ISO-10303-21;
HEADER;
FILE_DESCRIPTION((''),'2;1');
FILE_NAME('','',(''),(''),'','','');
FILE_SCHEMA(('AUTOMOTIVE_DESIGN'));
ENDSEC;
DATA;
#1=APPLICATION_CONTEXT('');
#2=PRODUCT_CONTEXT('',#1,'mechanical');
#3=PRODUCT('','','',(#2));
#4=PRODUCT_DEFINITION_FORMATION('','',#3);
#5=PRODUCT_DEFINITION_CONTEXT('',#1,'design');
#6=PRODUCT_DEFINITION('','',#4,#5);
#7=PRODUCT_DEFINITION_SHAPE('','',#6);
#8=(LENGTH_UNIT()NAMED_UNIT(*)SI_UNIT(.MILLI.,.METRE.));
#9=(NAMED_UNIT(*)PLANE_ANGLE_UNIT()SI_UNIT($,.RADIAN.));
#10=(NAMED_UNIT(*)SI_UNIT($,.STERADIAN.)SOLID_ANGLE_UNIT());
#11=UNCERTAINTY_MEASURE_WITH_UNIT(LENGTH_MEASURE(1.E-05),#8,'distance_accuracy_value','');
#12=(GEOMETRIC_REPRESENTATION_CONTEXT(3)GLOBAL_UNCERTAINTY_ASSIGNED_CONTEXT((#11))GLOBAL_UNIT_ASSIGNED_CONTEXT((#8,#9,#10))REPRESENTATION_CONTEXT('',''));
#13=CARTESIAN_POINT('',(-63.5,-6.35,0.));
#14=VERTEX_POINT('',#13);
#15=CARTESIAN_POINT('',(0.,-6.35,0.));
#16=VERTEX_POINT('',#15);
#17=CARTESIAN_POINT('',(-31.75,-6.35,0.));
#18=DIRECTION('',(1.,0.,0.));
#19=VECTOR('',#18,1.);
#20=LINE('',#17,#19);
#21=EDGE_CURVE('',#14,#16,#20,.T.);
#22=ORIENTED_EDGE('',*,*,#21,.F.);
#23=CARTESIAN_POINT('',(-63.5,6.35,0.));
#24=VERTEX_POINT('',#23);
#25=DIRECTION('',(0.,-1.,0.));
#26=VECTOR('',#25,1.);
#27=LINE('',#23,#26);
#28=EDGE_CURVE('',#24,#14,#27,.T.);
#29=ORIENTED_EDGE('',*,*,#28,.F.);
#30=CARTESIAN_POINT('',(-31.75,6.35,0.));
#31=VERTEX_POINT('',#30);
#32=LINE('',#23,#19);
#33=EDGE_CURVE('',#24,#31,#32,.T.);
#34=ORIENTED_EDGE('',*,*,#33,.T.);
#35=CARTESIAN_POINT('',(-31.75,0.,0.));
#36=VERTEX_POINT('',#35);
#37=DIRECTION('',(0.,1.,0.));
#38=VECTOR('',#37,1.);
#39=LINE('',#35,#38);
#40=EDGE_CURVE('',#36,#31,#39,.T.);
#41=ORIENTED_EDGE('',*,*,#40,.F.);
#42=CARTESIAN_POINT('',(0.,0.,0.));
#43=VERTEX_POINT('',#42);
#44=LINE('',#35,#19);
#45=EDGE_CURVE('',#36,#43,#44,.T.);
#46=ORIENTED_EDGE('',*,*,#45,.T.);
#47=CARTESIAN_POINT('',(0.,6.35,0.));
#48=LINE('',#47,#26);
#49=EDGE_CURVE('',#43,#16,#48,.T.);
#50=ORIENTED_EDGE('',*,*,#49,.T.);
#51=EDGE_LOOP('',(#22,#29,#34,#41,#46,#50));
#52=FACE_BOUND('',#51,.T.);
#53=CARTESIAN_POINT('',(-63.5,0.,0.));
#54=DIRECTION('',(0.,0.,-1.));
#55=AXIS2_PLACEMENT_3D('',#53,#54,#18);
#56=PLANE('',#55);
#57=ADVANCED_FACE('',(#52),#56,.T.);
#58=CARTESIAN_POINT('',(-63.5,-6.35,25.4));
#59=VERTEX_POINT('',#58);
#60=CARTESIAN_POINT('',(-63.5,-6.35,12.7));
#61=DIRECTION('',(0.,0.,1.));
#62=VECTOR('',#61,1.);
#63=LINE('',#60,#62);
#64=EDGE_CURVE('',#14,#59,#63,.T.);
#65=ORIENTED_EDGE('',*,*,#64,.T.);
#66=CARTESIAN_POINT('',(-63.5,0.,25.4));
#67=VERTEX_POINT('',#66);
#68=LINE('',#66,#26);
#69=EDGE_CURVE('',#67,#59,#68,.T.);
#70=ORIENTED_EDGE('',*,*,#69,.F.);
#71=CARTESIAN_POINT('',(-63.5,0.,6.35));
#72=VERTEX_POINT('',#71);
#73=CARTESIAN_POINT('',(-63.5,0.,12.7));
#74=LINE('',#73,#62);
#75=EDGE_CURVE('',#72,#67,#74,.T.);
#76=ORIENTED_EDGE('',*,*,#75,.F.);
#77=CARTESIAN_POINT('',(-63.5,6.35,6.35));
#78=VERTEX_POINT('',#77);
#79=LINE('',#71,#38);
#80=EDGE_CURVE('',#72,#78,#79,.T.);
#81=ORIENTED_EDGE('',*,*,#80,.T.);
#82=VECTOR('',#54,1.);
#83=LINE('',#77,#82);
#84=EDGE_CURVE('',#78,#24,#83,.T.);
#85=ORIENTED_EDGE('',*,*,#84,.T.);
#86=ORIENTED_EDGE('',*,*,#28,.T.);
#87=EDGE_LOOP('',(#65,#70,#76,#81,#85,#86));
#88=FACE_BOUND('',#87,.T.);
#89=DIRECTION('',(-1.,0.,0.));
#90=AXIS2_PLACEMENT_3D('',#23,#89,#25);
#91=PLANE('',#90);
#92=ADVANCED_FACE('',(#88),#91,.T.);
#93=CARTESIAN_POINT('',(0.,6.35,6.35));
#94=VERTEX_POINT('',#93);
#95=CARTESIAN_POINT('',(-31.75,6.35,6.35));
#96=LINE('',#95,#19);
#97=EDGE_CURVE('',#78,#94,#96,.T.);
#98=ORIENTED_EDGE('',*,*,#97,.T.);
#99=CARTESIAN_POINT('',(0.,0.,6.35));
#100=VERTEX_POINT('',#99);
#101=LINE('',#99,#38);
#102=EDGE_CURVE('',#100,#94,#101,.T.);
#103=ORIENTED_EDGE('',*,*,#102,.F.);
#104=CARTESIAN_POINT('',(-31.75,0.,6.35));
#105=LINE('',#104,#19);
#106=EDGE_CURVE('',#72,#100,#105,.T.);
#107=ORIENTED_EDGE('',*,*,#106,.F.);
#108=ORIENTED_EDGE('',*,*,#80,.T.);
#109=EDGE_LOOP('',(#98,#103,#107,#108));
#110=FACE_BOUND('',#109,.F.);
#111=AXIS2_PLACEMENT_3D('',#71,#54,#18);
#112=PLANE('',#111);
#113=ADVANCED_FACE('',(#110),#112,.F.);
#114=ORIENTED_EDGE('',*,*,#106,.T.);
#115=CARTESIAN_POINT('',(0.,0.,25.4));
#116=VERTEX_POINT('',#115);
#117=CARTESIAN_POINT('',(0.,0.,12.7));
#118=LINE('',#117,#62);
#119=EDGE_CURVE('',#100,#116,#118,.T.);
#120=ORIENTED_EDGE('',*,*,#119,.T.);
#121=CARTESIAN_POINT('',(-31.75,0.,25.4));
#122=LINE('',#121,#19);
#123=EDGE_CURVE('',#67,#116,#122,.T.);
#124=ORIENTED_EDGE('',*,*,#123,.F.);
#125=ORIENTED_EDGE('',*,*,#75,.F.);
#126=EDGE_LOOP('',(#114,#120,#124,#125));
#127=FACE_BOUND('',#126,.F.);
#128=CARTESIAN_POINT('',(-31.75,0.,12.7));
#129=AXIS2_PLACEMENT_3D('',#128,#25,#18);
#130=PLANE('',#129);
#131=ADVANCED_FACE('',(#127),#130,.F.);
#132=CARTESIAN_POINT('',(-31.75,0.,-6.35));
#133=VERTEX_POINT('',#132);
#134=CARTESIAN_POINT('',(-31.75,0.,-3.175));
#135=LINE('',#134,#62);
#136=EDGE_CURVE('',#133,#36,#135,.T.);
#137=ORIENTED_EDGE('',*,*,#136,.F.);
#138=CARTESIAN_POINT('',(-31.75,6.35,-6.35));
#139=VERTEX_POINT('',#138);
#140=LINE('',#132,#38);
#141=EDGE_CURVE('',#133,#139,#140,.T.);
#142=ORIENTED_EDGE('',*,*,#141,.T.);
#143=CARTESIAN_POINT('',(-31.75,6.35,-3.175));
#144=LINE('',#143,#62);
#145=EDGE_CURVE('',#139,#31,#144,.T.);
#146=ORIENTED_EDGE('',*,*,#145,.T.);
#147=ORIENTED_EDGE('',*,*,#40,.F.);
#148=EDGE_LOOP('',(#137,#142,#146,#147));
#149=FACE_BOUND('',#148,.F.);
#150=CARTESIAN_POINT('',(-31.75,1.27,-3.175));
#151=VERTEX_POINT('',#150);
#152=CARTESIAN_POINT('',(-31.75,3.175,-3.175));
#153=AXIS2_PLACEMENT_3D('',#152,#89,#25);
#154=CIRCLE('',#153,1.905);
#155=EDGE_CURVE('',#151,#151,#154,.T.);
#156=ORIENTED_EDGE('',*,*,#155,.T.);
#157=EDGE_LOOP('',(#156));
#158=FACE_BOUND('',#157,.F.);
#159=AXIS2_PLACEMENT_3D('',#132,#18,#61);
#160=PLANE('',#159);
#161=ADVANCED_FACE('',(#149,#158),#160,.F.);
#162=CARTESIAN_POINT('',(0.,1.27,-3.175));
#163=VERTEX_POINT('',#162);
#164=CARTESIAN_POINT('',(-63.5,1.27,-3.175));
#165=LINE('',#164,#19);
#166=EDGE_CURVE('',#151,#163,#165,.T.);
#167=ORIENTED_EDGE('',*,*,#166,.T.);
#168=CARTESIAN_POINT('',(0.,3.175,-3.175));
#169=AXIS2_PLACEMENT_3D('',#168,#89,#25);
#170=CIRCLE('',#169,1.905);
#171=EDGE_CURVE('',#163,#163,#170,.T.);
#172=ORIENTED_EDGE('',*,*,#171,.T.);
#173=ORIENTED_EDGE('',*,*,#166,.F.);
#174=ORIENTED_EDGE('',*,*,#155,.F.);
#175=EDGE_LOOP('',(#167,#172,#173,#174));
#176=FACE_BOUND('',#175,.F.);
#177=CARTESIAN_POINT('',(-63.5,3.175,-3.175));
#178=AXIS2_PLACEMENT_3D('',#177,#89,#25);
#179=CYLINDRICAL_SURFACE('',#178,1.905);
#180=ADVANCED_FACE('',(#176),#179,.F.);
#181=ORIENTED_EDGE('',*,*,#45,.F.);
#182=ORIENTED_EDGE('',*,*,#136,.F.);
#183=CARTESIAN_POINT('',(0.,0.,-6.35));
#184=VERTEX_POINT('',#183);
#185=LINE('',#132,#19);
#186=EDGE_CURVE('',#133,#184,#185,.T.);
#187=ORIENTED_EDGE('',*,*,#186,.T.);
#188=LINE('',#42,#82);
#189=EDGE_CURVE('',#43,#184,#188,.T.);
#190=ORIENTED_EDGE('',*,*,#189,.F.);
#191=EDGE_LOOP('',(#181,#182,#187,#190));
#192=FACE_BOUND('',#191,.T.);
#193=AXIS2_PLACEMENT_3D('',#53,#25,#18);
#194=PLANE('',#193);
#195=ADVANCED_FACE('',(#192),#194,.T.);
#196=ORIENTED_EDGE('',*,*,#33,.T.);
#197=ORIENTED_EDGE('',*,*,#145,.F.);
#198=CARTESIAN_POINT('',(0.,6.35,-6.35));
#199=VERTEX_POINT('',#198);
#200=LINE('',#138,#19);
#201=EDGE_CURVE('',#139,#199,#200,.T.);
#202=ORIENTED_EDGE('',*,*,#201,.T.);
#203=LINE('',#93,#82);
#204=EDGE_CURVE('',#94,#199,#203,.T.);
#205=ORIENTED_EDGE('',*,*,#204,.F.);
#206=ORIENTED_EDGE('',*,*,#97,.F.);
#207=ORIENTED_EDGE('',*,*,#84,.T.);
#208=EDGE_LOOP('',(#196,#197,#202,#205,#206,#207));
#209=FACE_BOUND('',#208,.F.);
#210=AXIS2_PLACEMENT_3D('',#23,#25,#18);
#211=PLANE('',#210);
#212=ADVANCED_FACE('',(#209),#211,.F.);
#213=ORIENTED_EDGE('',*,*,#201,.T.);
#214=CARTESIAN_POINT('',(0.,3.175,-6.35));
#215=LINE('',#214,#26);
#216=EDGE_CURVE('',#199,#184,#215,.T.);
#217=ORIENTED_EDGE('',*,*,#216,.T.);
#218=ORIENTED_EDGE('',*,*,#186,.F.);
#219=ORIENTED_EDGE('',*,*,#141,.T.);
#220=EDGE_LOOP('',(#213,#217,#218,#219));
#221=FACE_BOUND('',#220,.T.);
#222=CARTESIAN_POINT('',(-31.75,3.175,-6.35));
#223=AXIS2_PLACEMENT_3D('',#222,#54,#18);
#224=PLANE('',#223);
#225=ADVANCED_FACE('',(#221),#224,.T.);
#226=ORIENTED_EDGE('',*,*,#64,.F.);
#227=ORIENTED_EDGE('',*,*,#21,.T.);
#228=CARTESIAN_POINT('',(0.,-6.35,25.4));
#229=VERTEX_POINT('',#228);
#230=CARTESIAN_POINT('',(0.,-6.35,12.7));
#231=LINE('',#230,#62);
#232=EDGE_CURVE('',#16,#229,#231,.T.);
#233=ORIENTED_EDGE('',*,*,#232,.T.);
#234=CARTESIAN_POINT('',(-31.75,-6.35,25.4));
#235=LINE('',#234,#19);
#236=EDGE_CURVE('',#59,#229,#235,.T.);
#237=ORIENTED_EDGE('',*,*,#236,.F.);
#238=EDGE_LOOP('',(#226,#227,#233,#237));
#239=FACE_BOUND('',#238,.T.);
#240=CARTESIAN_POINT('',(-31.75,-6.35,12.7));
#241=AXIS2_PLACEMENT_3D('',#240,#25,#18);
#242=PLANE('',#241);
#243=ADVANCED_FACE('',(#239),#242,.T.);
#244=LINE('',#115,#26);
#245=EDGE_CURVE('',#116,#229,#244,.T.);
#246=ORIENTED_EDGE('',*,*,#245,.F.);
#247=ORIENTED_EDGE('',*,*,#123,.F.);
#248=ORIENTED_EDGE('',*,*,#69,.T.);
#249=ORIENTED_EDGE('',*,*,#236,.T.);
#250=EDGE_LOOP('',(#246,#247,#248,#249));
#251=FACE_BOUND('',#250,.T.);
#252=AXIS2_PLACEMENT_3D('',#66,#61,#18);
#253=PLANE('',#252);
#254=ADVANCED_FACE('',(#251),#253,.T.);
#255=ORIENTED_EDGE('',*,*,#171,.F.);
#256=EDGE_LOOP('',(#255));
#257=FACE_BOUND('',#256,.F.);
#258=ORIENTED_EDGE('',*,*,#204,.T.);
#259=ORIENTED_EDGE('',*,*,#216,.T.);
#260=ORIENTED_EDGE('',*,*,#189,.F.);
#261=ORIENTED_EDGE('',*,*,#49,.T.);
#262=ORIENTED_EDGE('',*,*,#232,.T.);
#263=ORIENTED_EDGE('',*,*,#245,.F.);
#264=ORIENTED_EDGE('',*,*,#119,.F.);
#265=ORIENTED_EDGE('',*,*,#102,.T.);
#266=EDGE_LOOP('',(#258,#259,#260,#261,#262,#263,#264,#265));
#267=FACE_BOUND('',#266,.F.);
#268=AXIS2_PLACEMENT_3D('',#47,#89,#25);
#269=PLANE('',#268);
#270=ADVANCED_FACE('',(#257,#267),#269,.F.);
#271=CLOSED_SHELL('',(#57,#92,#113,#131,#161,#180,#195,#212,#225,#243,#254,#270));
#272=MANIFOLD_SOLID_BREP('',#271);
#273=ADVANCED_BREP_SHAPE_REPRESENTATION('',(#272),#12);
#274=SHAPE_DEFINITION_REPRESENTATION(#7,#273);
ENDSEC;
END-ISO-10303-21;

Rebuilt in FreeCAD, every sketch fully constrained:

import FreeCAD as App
import Part
import Sketcher

V = App.Vector
Q = App.Units.Quantity

doc = App.newDocument("Part")
body = doc.addObject("PartDesign::Body", "Body")

# Sketch on XZ plane
sketch1 = body.newObject("Sketcher::SketchObject", "Sketch")
sketch1.AttachmentSupport = (doc.getObject("XZ_Plane"), [""])
sketch1.MapMode = "FlatFace"
sketch1.addGeometry(Part.LineSegment(V(-64, 25, 0), V(-64, 0, 0)), False)
sketch1.addGeometry(Part.LineSegment(V(-64, 0, 0), V(0, 0, 0)), False)
sketch1.addGeometry(Part.LineSegment(V(0, 0, 0), V(0, 25, 0)), False)
sketch1.addGeometry(Part.LineSegment(V(0, 25, 0), V(-64, 25, 0)), False)
sketch1.addConstraint(Sketcher.Constraint("Coincident", 0, 2, 1, 1))
sketch1.addConstraint(Sketcher.Constraint("Coincident", 1, 2, 2, 1))
sketch1.addConstraint(Sketcher.Constraint("Coincident", 2, 2, 3, 1))
sketch1.addConstraint(Sketcher.Constraint("Coincident", 3, 2, 0, 1))
sketch1.addConstraint(Sketcher.Constraint("Vertical", 0))
sketch1.addConstraint(Sketcher.Constraint("Horizontal", 1))
sketch1.addConstraint(Sketcher.Constraint("Vertical", 2))
sketch1.addConstraint(Sketcher.Constraint("Horizontal", 3))
sketch1.addConstraint(Sketcher.Constraint("Coincident", 1, 2, -1, 1))
sketch1.addConstraint(Sketcher.Constraint("DistanceY", 0, 2, 0, 1, Q("1 in")))
sketch1.addConstraint(Sketcher.Constraint("DistanceX", 1, 1, 1, 2, Q("2.5 in")))
pad1 = body.newObject("PartDesign::Pad", "Pad")
pad1.Profile = sketch1
pad1.Length = Q("0.25 in")

# Sketch on XZ plane
sketch2 = body.newObject("Sketcher::SketchObject", "Sketch001")
sketch2.AttachmentSupport = (doc.getObject("XZ_Plane"), [""])
sketch2.MapMode = "FlatFace"
sketch2.addGeometry(Part.LineSegment(V(-64, 6, 0), V(-64, 0, 0)), False)
sketch2.addGeometry(Part.LineSegment(V(-64, 0, 0), V(0, 0, 0)), False)
sketch2.addGeometry(Part.LineSegment(V(0, 0, 0), V(0, 6, 0)), False)
sketch2.addGeometry(Part.LineSegment(V(0, 6, 0), V(-64, 6, 0)), False)
sketch2.addConstraint(Sketcher.Constraint("Coincident", 0, 2, 1, 1))
sketch2.addConstraint(Sketcher.Constraint("Coincident", 1, 2, 2, 1))
sketch2.addConstraint(Sketcher.Constraint("Coincident", 2, 2, 3, 1))
sketch2.addConstraint(Sketcher.Constraint("Coincident", 3, 2, 0, 1))
sketch2.addConstraint(Sketcher.Constraint("Vertical", 0))
sketch2.addConstraint(Sketcher.Constraint("Horizontal", 1))
sketch2.addConstraint(Sketcher.Constraint("Vertical", 2))
sketch2.addConstraint(Sketcher.Constraint("Horizontal", 3))
sketch2.addConstraint(Sketcher.Constraint("Coincident", 1, 2, -1, 1))
sketch2.addConstraint(Sketcher.Constraint("DistanceX", 1, 1, 1, 2, Q("2.5 in")))
sketch2.addConstraint(Sketcher.Constraint("DistanceY", 0, 2, 0, 1, Q("0.25 in")))
pad2 = body.newObject("PartDesign::Pad", "Pad001")
pad2.Profile = sketch2
pad2.Length = Q("0.25 in")
pad2.Reversed = True

# Sketch on XY plane
sketch3 = body.newObject("Sketcher::SketchObject", "Sketch002")
sketch3.AttachmentSupport = (doc.getObject("XY_Plane"), [""])
sketch3.MapMode = "FlatFace"
sketch3.addGeometry(Part.LineSegment(V(-64, 0, 0), V(-64, 6, 0)), False)
sketch3.addGeometry(Part.LineSegment(V(-64, 6, 0), V(0, 6, 0)), False)
sketch3.addGeometry(Part.LineSegment(V(0, 6, 0), V(0, 0, 0)), False)
sketch3.addGeometry(Part.LineSegment(V(0, 0, 0), V(-64, 0, 0)), False)
sketch3.addConstraint(Sketcher.Constraint("Coincident", 0, 2, 1, 1))
sketch3.addConstraint(Sketcher.Constraint("Coincident", 1, 2, 2, 1))
sketch3.addConstraint(Sketcher.Constraint("Coincident", 2, 2, 3, 1))
sketch3.addConstraint(Sketcher.Constraint("Coincident", 3, 2, 0, 1))
sketch3.addConstraint(Sketcher.Constraint("Vertical", 0))
sketch3.addConstraint(Sketcher.Constraint("Horizontal", 1))
sketch3.addConstraint(Sketcher.Constraint("Vertical", 2))
sketch3.addConstraint(Sketcher.Constraint("Horizontal", 3))
sketch3.addConstraint(Sketcher.Constraint("Coincident", 2, 2, -1, 1))
sketch3.addConstraint(Sketcher.Constraint("DistanceX", 1, 1, 1, 2, Q("2.5 in")))
sketch3.addConstraint(Sketcher.Constraint("DistanceY", 0, 1, 0, 2, Q("0.25 in")))
pad3 = body.newObject("PartDesign::Pad", "Pad002")
pad3.Profile = sketch3
pad3.Length = Q("0.25 in")
pad3.Reversed = True

# Sketch on YZ plane
sketch4 = body.newObject("Sketcher::SketchObject", "Sketch003")
sketch4.AttachmentSupport = (doc.getObject("YZ_Plane"), [""])
sketch4.MapMode = "FlatFace"
sketch4.AttachmentOffset = App.Placement(V(0, 0, -2.5 * 25.4), App.Rotation())
sketch4.addGeometry(Part.Circle(V(3.2, -3.2, 0), V(0, 0, 1), 1.9), False)
sketch4.addConstraint(Sketcher.Constraint("Diameter", 0, Q("0.15 in")))
sketch4.addConstraint(Sketcher.Constraint("DistanceX", -1, 1, 0, 3, Q("0.125 in")))
sketch4.addConstraint(Sketcher.Constraint("DistanceY", 0, 3, -1, 1, Q("0.125 in")))
pocket1 = body.newObject("PartDesign::Pocket", "Pocket")
pocket1.Profile = sketch4
pocket1.Type = "ThroughAll"
pocket1.Reversed = True

# Sketch on XZ plane
sketch5 = body.newObject("Sketcher::SketchObject", "Sketch004")
sketch5.AttachmentSupport = (doc.getObject("XZ_Plane"), [""])
sketch5.MapMode = "FlatFace"
sketch5.addGeometry(Part.LineSegment(V(-64, 0, 0), V(-64, -6, 0)), False)
sketch5.addGeometry(Part.LineSegment(V(-64, -6, 0), V(-32, -6, 0)), False)
sketch5.addGeometry(Part.LineSegment(V(-32, -6, 0), V(-32, 0, 0)), False)
sketch5.addGeometry(Part.LineSegment(V(-32, 0, 0), V(-64, 0, 0)), False)
sketch5.addConstraint(Sketcher.Constraint("Coincident", 0, 2, 1, 1))
sketch5.addConstraint(Sketcher.Constraint("Coincident", 1, 2, 2, 1))
sketch5.addConstraint(Sketcher.Constraint("Coincident", 2, 2, 3, 1))
sketch5.addConstraint(Sketcher.Constraint("Coincident", 3, 2, 0, 1))
sketch5.addConstraint(Sketcher.Constraint("Vertical", 0))
sketch5.addConstraint(Sketcher.Constraint("Horizontal", 1))
sketch5.addConstraint(Sketcher.Constraint("Vertical", 2))
sketch5.addConstraint(Sketcher.Constraint("Horizontal", 3))
sketch5.addConstraint(Sketcher.Constraint("PointOnObject", 2, 2, -1))
sketch5.addConstraint(Sketcher.Constraint("DistanceX", 1, 1, 1, 2, Q("1.25 in")))
sketch5.addConstraint(Sketcher.Constraint("DistanceY", 0, 2, 0, 1, Q("0.25 in")))
sketch5.addConstraint(Sketcher.Constraint("DistanceX", 0, 2, -1, 1, Q("2.5 in")))
pocket2 = body.newObject("PartDesign::Pocket", "Pocket001")
pocket2.Profile = sketch5
pocket2.Length = Q("1 in")

doc.recompute()
